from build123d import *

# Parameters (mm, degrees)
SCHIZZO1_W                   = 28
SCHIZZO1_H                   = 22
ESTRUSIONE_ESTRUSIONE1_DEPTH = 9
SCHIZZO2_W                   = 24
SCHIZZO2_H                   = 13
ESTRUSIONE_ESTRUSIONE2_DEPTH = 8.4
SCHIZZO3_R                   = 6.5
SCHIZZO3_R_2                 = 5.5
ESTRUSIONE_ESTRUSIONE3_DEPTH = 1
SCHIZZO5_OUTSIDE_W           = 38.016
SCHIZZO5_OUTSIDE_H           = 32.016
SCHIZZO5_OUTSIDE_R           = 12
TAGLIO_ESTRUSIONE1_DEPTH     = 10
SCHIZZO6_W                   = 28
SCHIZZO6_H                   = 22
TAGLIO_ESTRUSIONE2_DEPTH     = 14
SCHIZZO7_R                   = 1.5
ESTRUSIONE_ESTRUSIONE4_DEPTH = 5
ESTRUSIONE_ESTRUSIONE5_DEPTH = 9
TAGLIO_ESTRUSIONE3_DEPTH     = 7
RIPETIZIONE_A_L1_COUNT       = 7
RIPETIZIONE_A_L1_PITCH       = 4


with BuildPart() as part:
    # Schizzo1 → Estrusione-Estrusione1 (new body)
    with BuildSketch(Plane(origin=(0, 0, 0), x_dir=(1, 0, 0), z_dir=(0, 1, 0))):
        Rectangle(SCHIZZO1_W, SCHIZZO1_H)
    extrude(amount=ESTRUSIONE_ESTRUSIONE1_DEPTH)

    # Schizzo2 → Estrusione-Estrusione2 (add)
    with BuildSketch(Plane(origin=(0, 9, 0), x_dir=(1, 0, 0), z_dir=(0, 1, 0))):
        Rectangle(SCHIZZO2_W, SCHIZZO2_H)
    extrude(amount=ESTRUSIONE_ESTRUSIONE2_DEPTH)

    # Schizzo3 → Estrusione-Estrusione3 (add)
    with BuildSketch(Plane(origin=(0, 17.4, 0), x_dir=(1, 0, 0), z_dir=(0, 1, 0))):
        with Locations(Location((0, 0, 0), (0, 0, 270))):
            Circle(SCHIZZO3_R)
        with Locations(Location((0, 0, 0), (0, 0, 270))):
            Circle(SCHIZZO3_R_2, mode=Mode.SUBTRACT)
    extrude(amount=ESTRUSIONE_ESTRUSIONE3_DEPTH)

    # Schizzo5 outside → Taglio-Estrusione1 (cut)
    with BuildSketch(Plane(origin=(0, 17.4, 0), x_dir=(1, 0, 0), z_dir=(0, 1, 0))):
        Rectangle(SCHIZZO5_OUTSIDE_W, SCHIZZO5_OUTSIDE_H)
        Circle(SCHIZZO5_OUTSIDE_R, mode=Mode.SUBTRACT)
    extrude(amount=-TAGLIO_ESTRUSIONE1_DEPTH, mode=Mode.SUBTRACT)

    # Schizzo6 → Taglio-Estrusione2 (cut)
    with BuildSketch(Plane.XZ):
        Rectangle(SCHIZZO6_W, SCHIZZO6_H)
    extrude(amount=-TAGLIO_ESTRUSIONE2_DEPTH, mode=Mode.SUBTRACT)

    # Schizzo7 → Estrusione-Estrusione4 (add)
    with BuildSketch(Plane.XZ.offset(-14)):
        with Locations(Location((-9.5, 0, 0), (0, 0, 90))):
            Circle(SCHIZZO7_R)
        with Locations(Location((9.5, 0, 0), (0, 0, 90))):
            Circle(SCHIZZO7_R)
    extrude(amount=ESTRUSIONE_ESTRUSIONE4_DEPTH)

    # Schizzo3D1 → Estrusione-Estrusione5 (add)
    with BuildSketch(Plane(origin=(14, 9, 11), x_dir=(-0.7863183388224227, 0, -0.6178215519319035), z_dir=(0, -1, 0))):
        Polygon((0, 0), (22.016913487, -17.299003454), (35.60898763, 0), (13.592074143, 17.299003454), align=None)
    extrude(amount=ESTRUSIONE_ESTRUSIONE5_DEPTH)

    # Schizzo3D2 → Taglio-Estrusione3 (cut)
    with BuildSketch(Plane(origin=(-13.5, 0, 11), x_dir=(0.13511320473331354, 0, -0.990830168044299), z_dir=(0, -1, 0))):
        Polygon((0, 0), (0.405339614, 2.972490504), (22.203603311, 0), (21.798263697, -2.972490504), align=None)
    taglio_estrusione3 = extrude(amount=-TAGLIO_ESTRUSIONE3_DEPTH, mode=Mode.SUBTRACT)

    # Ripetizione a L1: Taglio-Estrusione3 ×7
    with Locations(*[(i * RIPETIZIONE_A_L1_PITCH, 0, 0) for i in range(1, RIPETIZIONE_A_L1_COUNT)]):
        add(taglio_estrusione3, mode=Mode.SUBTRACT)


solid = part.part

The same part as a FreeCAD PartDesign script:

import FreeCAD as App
import Part
import Sketcher
from FreeCAD import Vector
Q = App.Units.Quantity

doc = App.newDocument("Part")
params = doc.addObject("Spreadsheet::Sheet", "Params")
for row, (alias, value) in enumerate([
    ("sketch1_width", "28 mm"),
    ("sketch1_height", "22 mm"),
    ("pad1_length", "9 mm"),
    ("sketch2_width", "24 mm"),
    ("sketch2_height", "13 mm"),
    ("pad2_length", "8.4 mm"),
    ("sketch3_diameter", "13 mm"),
    ("sketch3_diameter2", "11 mm"),
    ("pad3_length", "1 mm"),
    ("sketch4_diameter", "24 mm"),
    ("pocket1_length", "10 mm"),
    ("sketch5_width", "28 mm"),
    ("sketch5_height", "22 mm"),
    ("pocket2_length", "14 mm"),
    ("sketch6_diameter", "3 mm"),
    ("pad4_length", "5 mm"),
    ("sketch7_width", "28 mm"),
    ("sketch7_height", "22 mm"),
    ("pad5_length", "9 mm"),
    ("sketch8_width", "3 mm"),
    ("sketch8_height", "22 mm"),
    ("pocket3_length", "7 mm"),
    ("linearpattern_pitch", "4 mm"),
], start=1):
    params.set(f"A{row}", alias)
    params.set(f"B{row}", "=" + value)
    params.setAlias(f"B{row}", alias)

body = doc.addObject("PartDesign::Body", "Body")

sketch1 = body.newObject("Sketcher::SketchObject", "Sketch")
sketch1.AttachmentSupport = (doc.getObject("XZ_Plane"), [""])
sketch1.MapMode = "FlatFace"
sketch1.addGeometry(Part.LineSegment(Vector(-14, -11, 0), Vector(-14, 11, 0)), False)
sketch1.addGeometry(Part.LineSegment(Vector(-14, 11, 0), Vector(14, 11, 0)), False)
sketch1.addGeometry(Part.LineSegment(Vector(14, 11, 0), Vector(14, -11, 0)), False)
sketch1.addGeometry(Part.LineSegment(Vector(14, -11, 0), Vector(-14, -11, 0)), False)
sketch1.addConstraint(Sketcher.Constraint("Coincident", 0, 2, 1, 1))
sketch1.addConstraint(Sketcher.Constraint("Coincident", 1, 2, 2, 1))
sketch1.addConstraint(Sketcher.Constraint("Coincident", 2, 2, 3, 1))
sketch1.addConstraint(Sketcher.Constraint("Coincident", 3, 2, 0, 1))
sketch1.addConstraint(Sketcher.Constraint("Vertical", 0))
sketch1.addConstraint(Sketcher.Constraint("Horizontal", 1))
sketch1.addConstraint(Sketcher.Constraint("Vertical", 2))
sketch1.addConstraint(Sketcher.Constraint("Horizontal", 3))
sketch1.addConstraint(Sketcher.Constraint("Symmetric", 0, 2, 2, 2, -1, 1))
sketch1.addConstraint(Sketcher.Constraint("DistanceX", 1, 1, 1, 2, Q("28 mm")))
sketch1.addConstraint(Sketcher.Constraint("DistanceY", 0, 1, 0, 2, Q("22 mm")))
sketch1.setExpression("Constraints[9]", "Params.sketch1_width")
sketch1.setExpression("Constraints[10]", "Params.sketch1_height")
pad1 = body.newObject("PartDesign::Pad", "Pad")
pad1.Profile = sketch1
pad1.setExpression("Length", "Params.pad1_length")
pad1.Reversed = True

sketch2 = body.newObject("Sketcher::SketchObject", "Sketch001")
sketch2.AttachmentSupport = (doc.getObject("XZ_Plane"), [""])
sketch2.MapMode = "FlatFace"
sketch2.AttachmentOffset = App.Placement(Vector(0, 0, -9), App.Rotation())
sketch2.addGeometry(Part.LineSegment(Vector(-12, -6.5, 0), Vector(-12, 6.5, 0)), False)
sketch2.addGeometry(Part.LineSegment(Vector(-12, 6.5, 0), Vector(12, 6.5, 0)), False)
sketch2.addGeometry(Part.LineSegment(Vector(12, 6.5, 0), Vector(12, -6.5, 0)), False)
sketch2.addGeometry(Part.LineSegment(Vector(12, -6.5, 0), Vector(-12, -6.5, 0)), False)
sketch2.addConstraint(Sketcher.Constraint("Coincident", 0, 2, 1, 1))
sketch2.addConstraint(Sketcher.Constraint("Coincident", 1, 2, 2, 1))
sketch2.addConstraint(Sketcher.Constraint("Coincident", 2, 2, 3, 1))
sketch2.addConstraint(Sketcher.Constraint("Coincident", 3, 2, 0, 1))
sketch2.addConstraint(Sketcher.Constraint("Vertical", 0))
sketch2.addConstraint(Sketcher.Constraint("Horizontal", 1))
sketch2.addConstraint(Sketcher.Constraint("Vertical", 2))
sketch2.addConstraint(Sketcher.Constraint("Horizontal", 3))
sketch2.addConstraint(Sketcher.Constraint("Symmetric", 0, 2, 2, 2, -1, 1))
sketch2.addConstraint(Sketcher.Constraint("DistanceX", 1, 1, 1, 2, Q("24 mm")))
sketch2.addConstraint(Sketcher.Constraint("DistanceY", 0, 1, 0, 2, Q("13 mm")))
sketch2.setExpression("Constraints[9]", "Params.sketch2_width")
sketch2.setExpression("Constraints[10]", "Params.sketch2_height")
pad2 = body.newObject("PartDesign::Pad", "Pad001")
pad2.Profile = sketch2
pad2.setExpression("Length", "Params.pad2_length")
pad2.Reversed = True

sketch3 = body.newObject("Sketcher::SketchObject", "Sketch002")
sketch3.AttachmentSupport = (doc.getObject("XZ_Plane"), [""])
sketch3.MapMode = "FlatFace"
sketch3.AttachmentOffset = App.Placement(Vector(0, 0, -17.4), App.Rotation())
sketch3.addGeometry(Part.Circle(Vector(0, 0, 0), Vector(0, 0, 1), 6.5), False)
sketch3.addGeometry(Part.Circle(Vector(0, 0, 0), Vector(0, 0, 1), 5.5), False)
sketch3.addConstraint(Sketcher.Constraint("Coincident", 0, 3, -1, 1))
sketch3.addConstraint(Sketcher.Constraint("Coincident", 1, 3, -1, 1))
sketch3.addConstraint(Sketcher.Constraint("Diameter", 0, Q("13 mm")))
sketch3.addConstraint(Sketcher.Constraint("Diameter", 1, Q("11 mm")))
sketch3.setExpression("Constraints[2]", "Params.sketch3_diameter")
sketch3.setExpression("Constraints[3]", "Params.sketch3_diameter2")
pad3 = body.newObject("PartDesign::Pad", "Pad002")
pad3.Profile = sketch3
pad3.setExpression("Length", "Params.pad3_length")
pad3.Reversed = True

sketch4 = body.newObject("Sketcher::SketchObject", "Sketch003")
sketch4.AttachmentSupport = (doc.getObject("XZ_Plane"), [""])
sketch4.MapMode = "FlatFace"
sketch4.AttachmentOffset = App.Placement(Vector(0, 0, -17.4), App.Rotation())
sketch4.addGeometry(Part.LineSegment(Vector(-19.008, -16.008, 0), Vector(-19.008, 16.008, 0)), False)
sketch4.addGeometry(Part.LineSegment(Vector(-19.008, 16.008, 0), Vector(19.008, 16.008, 0)), False)
sketch4.addGeometry(Part.LineSegment(Vector(19.008, 16.008, 0), Vector(19.008, -16.008, 0)), False)
sketch4.addGeometry(Part.LineSegment(Vector(19.008, -16.008, 0), Vector(-19.008, -16.008, 0)), False)
sketch4.addGeometry(Part.Circle(Vector(0, 0, 0), Vector(0, 0, 1), 12), False)
sketch4.addConstraint(Sketcher.Constraint("Coincident", 0, 2, 1, 1))
sketch4.addConstraint(Sketcher.Constraint("Coincident", 1, 2, 2, 1))
sketch4.addConstraint(Sketcher.Constraint("Coincident", 2, 2, 3, 1))
sketch4.addConstraint(Sketcher.Constraint("Coincident", 3, 2, 0, 1))
sketch4.addConstraint(Sketcher.Constraint("Vertical", 0))
sketch4.addConstraint(Sketcher.Constraint("Horizontal", 1))
sketch4.addConstraint(Sketcher.Constraint("Vertical", 2))
sketch4.addConstraint(Sketcher.Constraint("Horizontal", 3))
sketch4.addConstraint(Sketcher.Constraint("Coincident", 4, 3, -1, 1))
sketch4.addConstraint(Sketcher.Constraint("Symmetric", 0, 2, 2, 2, -1, 1))
sketch4.addConstraint(Sketcher.Constraint("Diameter", 4, Q("24 mm")))
sketch4.addConstraint(Sketcher.Constraint("DistanceX", 1, 1, 1, 2, Q("38.016 mm")))
sketch4.addConstraint(Sketcher.Constraint("DistanceY", 0, 1, 0, 2, Q("32.016 mm")))
sketch4.setExpression("Constraints[10]", "Params.sketch4_diameter")
pocket1 = body.newObject("PartDesign::Pocket", "Pocket")
pocket1.Profile = sketch4
pocket1.setExpression("Length", "Params.pocket1_length")
pocket1.Reversed = True

sketch5 = body.newObject("Sketcher::SketchObject", "Sketch004")
sketch5.AttachmentSupport = (doc.getObject("XZ_Plane"), [""])
sketch5.MapMode = "FlatFace"
sketch5.addGeometry(Part.LineSegment(Vector(-14, 11, 0), Vector(-14, -11, 0)), False)
sketch5.addGeometry(Part.LineSegment(Vector(-14, -11, 0), Vector(14, -11, 0)), False)
sketch5.addGeometry(Part.LineSegment(Vector(14, -11, 0), Vector(14, 11, 0)), False)
sketch5.addGeometry(Part.LineSegment(Vector(14, 11, 0), Vector(-14, 11, 0)), False)
sketch5.addConstraint(Sketcher.Constraint("Coincident", 0, 2, 1, 1))
sketch5.addConstraint(Sketcher.Constraint("Coincident", 1, 2, 2, 1))
sketch5.addConstraint(Sketcher.Constraint("Coincident", 2, 2, 3, 1))
sketch5.addConstraint(Sketcher.Constraint("Coincident", 3, 2, 0, 1))
sketch5.addConstraint(Sketcher.Constraint("Vertical", 0))
sketch5.addConstraint(Sketcher.Constraint("Horizontal", 1))
sketch5.addConstraint(Sketcher.Constraint("Vertical", 2))
sketch5.addConstraint(Sketcher.Constraint("Horizontal", 3))
sketch5.addConstraint(Sketcher.Constraint("Symmetric", 0, 2, 2, 2, -1, 1))
sketch5.addConstraint(Sketcher.Constraint("DistanceX", 1, 1, 1, 2, Q("28 mm")))
sketch5.addConstraint(Sketcher.Constraint("DistanceY", 0, 2, 0, 1, Q("22 mm")))
sketch5.setExpression("Constraints[9]", "Params.sketch5_width")
sketch5.setExpression("Constraints[10]", "Params.sketch5_height")
pocket2 = body.newObject("PartDesign::Pocket", "Pocket001")
pocket2.Profile = sketch5
pocket2.setExpression("Length", "Params.pocket2_length")

sketch6 = body.newObject("Sketcher::SketchObject", "Sketch005")
sketch6.AttachmentSupport = (doc.getObject("XZ_Plane"), [""])
sketch6.MapMode = "FlatFace"
sketch6.AttachmentOffset = App.Placement(Vector(0, 0, -14), App.Rotation())
sketch6.addGeometry(Part.Circle(Vector(-9.5, 0, 0), Vector(0, 0, 1), 1.5), False)
sketch6.addGeometry(Part.Circle(Vector(9.5, 0, 0), Vector(0, 0, 1), 1.5), False)
sketch6.addConstraint(Sketcher.Constraint("Equal", 0, 1))
sketch6.addConstraint(Sketcher.Constraint("Symmetric", 0, 3, 1, 3, -1, 1))
sketch6.addConstraint(Sketcher.Constraint("PointOnObject", 0, 3, -1))
sketch6.addConstraint(Sketcher.Constraint("Diameter", 0, Q("3 mm")))
sketch6.addConstraint(Sketcher.Constraint("DistanceX", 0, 3, 1, 3, Q("19 mm")))
sketch6.setExpression("Constraints[3]", "Params.sketch6_diameter")
pad4 = body.newObject("PartDesign::Pad", "Pad003")
pad4.Profile = sketch6
pad4.setExpression("Length", "Params.pad4_length")

sketch7 = body.newObject("Sketcher::SketchObject", "Sketch006")
sketch7.AttachmentSupport = (doc.getObject("XZ_Plane"), [""])
sketch7.MapMode = "FlatFace"
sketch7.AttachmentOffset = App.Placement(Vector(0, 0, -9), App.Rotation())
sketch7.addGeometry(Part.LineSegment(Vector(14, 11, 0), Vector(-14, 11, 0)), False)
sketch7.addGeometry(Part.LineSegment(Vector(-14, 11, 0), Vector(-14, -11, 0)), False)
sketch7.addGeometry(Part.LineSegment(Vector(-14, -11, 0), Vector(14, -11, 0)), False)
sketch7.addGeometry(Part.LineSegment(Vector(14, -11, 0), Vector(14, 11, 0)), False)
sketch7.addConstraint(Sketcher.Constraint("Coincident", 0, 2, 1, 1))
sketch7.addConstraint(Sketcher.Constraint("Coincident", 1, 2, 2, 1))
sketch7.addConstraint(Sketcher.Constraint("Coincident", 2, 2, 3, 1))
sketch7.addConstraint(Sketcher.Constraint("Coincident", 3, 2, 0, 1))
sketch7.addConstraint(Sketcher.Constraint("Horizontal", 0))
sketch7.addConstraint(Sketcher.Constraint("Vertical", 1))
sketch7.addConstraint(Sketcher.Constraint("Horizontal", 2))
sketch7.addConstraint(Sketcher.Constraint("Vertical", 3))
sketch7.addConstraint(Sketcher.Constraint("Symmetric", 0, 2, 2, 2, -1, 1))
sketch7.addConstraint(Sketcher.Constraint("DistanceX", 0, 2, 0, 1, Q("28 mm")))
sketch7.addConstraint(Sketcher.Constraint("DistanceY", 1, 2, 1, 1, Q("22 mm")))
sketch7.setExpression("Constraints[9]", "Params.sketch7_width")
sketch7.setExpression("Constraints[10]", "Params.sketch7_height")
pad5 = body.newObject("PartDesign::Pad", "Pad004")
pad5.Profile = sketch7
pad5.setExpression("Length", "Params.pad5_length")

sketch8 = body.newObject("Sketcher::SketchObject", "Sketch007")
sketch8.AttachmentSupport = (doc.getObject("XZ_Plane"), [""])
sketch8.MapMode = "FlatFace"
sketch8.addGeometry(Part.LineSegment(Vector(-10.5, 11, 0), Vector(-13.5, 11, 0)), False)
sketch8.addGeometry(Part.LineSegment(Vector(-13.5, 11, 0), Vector(-13.5, -11, 0)), False)
sketch8.addGeometry(Part.LineSegment(Vector(-13.5, -11, 0), Vector(-10.5, -11, 0)), False)
sketch8.addGeometry(Part.LineSegment(Vector(-10.5, -11, 0), Vector(-10.5, 11, 0)), False)
sketch8.addConstraint(Sketcher.Constraint("Coincident", 0, 2, 1, 1))
sketch8.addConstraint(Sketcher.Constraint("Coincident", 1, 2, 2, 1))
sketch8.addConstraint(Sketcher.Constraint("Coincident", 2, 2, 3, 1))
sketch8.addConstraint(Sketcher.Constraint("Coincident", 3, 2, 0, 1))
sketch8.addConstraint(Sketcher.Constraint("Horizontal", 0))
sketch8.addConstraint(Sketcher.Constraint("Vertical", 1))
sketch8.addConstraint(Sketcher.Constraint("Horizontal", 2))
sketch8.addConstraint(Sketcher.Constraint("Vertical", 3))
sketch8.addConstraint(Sketcher.Constraint("DistanceX", 0, 2, 0, 1, Q("3 mm")))
sketch8.addConstraint(Sketcher.Constraint("DistanceY", 1, 2, 1, 1, Q("22 mm")))
sketch8.addConstraint(Sketcher.Constraint("DistanceY", -1, 1, 0, 2, Q("11 mm")))
sketch8.addConstraint(Sketcher.Constraint("DistanceX", 0, 2, -1, 1, Q("13.5 mm")))
sketch8.setExpression("Constraints[8]", "Params.sketch8_width")
sketch8.setExpression("Constraints[9]", "Params.sketch8_height")
pocket3 = body.newObject("PartDesign::Pocket", "Pocket002")
pocket3.Profile = sketch8
pocket3.setExpression("Length", "Params.pocket3_length")
doc.recompute()

linearpattern = body.newObject("PartDesign::LinearPattern", "LinearPattern")
linearpattern.Originals = [pocket3]
linearpattern.Direction = (doc.getObject("X_Axis"), [""])
linearpattern.Mode = "offset"
linearpattern.setExpression("Offset", "Params.linearpattern_pitch")
linearpattern.Occurrences = 7
body.Tip = linearpattern

doc.recompute()
